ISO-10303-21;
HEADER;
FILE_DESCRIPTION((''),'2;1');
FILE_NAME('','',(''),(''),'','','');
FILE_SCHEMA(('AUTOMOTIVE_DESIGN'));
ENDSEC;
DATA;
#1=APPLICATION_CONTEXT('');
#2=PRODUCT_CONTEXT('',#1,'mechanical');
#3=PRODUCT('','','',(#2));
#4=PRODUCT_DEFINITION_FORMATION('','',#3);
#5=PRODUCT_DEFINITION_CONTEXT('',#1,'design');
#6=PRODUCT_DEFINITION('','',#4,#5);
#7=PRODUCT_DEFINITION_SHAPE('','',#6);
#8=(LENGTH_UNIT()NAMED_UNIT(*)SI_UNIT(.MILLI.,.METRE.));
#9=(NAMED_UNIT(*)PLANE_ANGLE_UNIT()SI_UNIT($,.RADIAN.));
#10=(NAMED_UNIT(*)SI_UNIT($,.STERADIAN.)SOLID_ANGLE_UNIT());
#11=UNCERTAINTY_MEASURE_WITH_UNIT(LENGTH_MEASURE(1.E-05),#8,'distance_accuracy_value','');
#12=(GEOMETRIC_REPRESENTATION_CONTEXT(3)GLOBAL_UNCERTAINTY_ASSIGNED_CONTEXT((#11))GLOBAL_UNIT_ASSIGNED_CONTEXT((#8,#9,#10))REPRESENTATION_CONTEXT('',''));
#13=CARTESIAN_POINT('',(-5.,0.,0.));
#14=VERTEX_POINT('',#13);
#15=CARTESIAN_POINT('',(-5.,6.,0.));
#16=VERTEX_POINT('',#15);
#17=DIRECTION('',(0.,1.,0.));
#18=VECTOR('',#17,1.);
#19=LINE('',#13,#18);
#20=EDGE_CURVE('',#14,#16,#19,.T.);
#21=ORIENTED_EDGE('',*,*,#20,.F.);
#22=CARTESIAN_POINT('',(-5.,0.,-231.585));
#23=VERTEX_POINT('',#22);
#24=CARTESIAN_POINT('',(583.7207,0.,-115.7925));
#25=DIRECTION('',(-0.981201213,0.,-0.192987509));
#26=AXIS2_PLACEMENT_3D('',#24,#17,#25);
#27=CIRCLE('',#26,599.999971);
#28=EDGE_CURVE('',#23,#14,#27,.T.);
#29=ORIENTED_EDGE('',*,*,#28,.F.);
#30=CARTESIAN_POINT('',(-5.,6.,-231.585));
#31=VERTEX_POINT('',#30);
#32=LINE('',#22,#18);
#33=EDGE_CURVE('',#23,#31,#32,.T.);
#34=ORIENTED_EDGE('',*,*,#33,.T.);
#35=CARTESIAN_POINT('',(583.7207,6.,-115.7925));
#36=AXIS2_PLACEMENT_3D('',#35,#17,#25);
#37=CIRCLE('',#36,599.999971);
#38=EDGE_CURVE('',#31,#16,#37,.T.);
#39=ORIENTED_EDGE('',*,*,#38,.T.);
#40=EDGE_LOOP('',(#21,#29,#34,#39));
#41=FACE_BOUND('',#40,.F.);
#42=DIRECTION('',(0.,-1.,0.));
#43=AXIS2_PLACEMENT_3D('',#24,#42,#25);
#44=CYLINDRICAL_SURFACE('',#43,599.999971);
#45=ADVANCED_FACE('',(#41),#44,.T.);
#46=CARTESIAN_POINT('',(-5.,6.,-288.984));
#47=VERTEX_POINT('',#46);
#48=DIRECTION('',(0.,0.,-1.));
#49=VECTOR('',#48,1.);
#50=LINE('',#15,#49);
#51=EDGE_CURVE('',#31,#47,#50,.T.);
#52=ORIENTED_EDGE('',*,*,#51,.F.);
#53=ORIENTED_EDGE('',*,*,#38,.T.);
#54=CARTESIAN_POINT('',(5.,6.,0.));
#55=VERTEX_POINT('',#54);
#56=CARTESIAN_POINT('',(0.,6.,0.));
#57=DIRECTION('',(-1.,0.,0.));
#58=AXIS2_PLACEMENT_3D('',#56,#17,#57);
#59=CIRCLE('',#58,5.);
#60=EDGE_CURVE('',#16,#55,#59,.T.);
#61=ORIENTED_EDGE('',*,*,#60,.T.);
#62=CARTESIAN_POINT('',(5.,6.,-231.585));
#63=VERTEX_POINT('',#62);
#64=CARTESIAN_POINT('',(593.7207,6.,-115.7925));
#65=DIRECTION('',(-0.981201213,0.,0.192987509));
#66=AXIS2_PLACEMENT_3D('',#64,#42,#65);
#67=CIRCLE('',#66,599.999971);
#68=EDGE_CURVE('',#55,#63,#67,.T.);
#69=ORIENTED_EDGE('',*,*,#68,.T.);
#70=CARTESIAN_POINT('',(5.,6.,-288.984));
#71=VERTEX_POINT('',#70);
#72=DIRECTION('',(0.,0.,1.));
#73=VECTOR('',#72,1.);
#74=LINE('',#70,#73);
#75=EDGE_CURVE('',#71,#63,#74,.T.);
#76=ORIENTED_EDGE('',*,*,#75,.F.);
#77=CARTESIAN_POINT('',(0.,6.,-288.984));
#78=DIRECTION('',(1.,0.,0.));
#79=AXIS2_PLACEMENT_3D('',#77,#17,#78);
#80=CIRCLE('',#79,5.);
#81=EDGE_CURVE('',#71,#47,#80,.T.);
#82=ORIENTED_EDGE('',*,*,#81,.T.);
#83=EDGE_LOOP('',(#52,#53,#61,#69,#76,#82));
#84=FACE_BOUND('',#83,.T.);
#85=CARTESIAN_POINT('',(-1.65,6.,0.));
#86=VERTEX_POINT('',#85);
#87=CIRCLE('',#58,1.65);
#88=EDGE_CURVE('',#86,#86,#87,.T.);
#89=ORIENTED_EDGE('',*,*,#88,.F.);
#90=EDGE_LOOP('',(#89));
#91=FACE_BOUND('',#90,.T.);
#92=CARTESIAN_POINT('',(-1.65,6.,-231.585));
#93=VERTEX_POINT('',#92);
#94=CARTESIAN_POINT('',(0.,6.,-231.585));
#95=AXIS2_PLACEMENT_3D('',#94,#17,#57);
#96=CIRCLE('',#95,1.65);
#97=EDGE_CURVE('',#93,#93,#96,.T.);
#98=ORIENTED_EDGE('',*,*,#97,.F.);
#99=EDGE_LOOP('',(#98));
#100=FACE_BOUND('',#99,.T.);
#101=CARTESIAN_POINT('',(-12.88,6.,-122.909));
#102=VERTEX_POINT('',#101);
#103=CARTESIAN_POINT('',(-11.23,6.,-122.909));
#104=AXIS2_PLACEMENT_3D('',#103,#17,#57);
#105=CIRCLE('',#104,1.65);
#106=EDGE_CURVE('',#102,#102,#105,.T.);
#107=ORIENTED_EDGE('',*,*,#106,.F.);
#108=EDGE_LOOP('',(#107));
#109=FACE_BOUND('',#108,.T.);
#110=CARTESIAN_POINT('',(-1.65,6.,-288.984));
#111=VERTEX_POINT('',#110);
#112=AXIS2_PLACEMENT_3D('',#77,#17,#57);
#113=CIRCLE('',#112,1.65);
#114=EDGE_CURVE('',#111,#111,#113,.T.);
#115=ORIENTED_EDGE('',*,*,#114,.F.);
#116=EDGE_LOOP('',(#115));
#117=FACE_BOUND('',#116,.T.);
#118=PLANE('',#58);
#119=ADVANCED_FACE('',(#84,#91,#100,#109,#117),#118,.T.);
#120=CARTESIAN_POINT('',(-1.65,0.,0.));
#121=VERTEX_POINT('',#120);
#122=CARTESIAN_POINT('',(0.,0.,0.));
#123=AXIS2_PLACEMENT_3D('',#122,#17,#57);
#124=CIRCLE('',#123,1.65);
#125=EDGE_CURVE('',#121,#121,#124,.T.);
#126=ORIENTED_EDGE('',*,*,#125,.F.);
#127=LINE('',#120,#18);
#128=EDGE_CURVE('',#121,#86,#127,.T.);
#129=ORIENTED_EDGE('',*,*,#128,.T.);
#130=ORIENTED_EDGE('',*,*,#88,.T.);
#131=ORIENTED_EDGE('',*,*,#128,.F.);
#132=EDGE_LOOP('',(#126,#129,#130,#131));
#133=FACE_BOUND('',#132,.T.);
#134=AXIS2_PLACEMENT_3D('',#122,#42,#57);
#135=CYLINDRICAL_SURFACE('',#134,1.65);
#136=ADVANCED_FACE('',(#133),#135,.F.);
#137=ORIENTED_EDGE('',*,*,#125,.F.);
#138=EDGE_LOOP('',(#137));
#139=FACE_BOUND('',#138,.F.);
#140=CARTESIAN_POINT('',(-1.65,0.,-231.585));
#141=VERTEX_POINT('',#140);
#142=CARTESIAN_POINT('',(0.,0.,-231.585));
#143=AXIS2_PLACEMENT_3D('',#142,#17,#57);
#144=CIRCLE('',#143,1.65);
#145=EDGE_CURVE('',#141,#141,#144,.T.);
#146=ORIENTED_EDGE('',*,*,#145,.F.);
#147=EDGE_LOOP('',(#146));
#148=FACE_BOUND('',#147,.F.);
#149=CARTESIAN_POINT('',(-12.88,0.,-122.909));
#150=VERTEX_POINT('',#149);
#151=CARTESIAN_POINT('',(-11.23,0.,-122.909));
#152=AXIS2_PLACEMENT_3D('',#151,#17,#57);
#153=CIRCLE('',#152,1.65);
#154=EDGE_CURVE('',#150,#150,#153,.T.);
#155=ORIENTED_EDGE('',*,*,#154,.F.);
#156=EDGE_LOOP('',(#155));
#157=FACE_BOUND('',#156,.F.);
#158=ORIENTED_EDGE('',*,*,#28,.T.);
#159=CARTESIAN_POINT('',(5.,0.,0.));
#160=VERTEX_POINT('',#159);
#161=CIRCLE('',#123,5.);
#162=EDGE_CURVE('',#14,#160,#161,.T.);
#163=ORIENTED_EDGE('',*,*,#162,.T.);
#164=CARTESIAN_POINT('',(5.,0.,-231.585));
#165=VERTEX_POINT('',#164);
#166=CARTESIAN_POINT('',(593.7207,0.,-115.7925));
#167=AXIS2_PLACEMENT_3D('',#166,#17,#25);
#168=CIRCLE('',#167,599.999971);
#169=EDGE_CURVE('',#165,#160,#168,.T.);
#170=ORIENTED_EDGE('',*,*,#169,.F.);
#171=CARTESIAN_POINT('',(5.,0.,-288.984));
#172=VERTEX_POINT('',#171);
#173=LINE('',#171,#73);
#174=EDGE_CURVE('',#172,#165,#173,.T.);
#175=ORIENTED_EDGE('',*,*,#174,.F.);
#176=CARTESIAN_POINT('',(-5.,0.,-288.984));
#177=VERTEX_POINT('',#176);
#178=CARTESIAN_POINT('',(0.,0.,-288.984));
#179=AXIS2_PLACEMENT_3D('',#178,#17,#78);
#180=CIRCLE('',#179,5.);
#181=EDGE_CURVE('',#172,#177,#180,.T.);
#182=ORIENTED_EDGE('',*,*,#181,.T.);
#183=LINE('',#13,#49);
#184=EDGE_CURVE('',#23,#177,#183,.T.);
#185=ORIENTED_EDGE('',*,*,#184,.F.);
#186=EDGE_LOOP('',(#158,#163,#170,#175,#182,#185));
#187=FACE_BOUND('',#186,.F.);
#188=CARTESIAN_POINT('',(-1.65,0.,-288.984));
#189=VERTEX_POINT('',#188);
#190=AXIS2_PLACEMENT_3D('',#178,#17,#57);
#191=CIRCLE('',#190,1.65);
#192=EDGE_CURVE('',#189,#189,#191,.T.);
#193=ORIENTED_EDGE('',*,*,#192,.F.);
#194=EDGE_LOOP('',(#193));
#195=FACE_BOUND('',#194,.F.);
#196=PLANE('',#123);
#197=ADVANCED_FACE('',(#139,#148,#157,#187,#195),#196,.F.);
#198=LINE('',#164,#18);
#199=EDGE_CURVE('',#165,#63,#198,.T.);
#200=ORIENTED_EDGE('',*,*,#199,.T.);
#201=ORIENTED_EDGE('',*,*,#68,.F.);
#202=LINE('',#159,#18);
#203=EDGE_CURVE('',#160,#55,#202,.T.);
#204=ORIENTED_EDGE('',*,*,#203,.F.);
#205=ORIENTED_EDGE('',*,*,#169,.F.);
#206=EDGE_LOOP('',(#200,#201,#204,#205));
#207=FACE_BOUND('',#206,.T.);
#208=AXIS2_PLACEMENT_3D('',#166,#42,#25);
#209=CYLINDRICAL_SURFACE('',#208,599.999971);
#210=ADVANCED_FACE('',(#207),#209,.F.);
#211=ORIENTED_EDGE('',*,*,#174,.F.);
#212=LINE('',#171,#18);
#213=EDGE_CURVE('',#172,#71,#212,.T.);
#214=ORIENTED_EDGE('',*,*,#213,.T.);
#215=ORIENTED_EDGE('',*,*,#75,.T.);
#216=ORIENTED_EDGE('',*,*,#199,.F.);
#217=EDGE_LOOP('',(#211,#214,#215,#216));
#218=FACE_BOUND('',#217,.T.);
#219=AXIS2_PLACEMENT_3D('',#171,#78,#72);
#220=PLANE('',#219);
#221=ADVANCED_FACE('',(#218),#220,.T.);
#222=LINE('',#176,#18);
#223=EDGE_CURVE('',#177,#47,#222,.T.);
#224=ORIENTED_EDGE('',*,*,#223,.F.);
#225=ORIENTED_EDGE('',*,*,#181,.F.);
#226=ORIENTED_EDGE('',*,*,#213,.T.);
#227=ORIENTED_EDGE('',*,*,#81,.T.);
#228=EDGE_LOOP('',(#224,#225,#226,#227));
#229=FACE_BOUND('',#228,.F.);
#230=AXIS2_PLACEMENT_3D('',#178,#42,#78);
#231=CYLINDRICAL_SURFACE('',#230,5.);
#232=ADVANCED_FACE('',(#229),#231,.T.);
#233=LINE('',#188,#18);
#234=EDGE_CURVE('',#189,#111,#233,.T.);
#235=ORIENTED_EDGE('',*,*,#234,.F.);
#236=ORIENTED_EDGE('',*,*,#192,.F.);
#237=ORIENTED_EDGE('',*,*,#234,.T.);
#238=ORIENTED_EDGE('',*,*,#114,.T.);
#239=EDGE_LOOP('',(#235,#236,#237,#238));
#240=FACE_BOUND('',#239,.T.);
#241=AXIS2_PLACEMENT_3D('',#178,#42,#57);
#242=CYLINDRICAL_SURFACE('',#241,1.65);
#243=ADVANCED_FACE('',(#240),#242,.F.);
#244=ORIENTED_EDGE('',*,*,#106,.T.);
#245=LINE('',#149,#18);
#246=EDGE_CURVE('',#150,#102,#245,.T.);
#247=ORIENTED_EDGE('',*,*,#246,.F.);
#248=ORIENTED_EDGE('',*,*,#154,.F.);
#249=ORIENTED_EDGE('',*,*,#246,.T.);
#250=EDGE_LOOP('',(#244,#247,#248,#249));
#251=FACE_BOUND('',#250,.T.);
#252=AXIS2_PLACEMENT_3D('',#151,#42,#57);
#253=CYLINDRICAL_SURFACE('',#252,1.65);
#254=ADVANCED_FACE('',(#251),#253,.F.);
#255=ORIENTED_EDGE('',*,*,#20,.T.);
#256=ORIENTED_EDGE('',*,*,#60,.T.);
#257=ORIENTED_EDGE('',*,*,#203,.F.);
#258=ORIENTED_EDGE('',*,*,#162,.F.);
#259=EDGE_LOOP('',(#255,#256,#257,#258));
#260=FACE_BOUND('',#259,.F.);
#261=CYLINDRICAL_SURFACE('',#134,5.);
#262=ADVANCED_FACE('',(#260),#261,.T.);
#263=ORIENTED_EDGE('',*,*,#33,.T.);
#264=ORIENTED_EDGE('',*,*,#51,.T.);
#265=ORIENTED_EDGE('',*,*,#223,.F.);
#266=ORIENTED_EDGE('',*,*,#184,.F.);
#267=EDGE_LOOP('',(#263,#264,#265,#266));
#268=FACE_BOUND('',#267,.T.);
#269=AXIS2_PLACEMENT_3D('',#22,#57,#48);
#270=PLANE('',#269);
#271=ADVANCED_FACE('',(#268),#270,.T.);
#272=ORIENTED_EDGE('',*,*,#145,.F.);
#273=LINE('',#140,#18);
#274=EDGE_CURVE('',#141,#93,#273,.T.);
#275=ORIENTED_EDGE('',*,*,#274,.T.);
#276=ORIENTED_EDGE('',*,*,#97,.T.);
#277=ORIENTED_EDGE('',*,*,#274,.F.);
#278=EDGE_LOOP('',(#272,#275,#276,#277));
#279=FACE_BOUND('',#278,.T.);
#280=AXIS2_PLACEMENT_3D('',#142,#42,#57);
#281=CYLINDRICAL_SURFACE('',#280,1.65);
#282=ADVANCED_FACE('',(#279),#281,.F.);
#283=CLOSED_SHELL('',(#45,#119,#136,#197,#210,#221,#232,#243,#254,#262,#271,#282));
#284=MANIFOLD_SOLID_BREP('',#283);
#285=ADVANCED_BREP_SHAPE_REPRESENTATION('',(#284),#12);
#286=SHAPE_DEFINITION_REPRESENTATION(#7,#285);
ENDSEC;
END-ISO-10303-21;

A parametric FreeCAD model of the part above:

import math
import FreeCAD as App
import Part
import Sketcher

V = App.Vector

doc = App.newDocument("Part")
params = doc.addObject("Spreadsheet::Sheet", "Params")
for row, (alias, value) in enumerate([
    ("sketch1_radius", "600 mm"),
    ("sketch1_radius2", "5 mm"),
    ("sketch1_diameter", "3.3 mm"),
    ("pad1_length", "6 mm"),
], start=1):
    params.set(f"A{row}", alias)
    params.set(f"B{row}", "=" + value)
    params.setAlias(f"B{row}", alias)

body = doc.addObject("PartDesign::Body", "Body")

# Sketch on XZ plane
sketch1 = body.newObject("Sketcher::SketchObject", "Sketch")
sketch1.AttachmentSupport = (doc.getObject("XZ_Plane"), [""])
sketch1.MapMode = "FlatFace"
sketch1.addGeometry([
    Part.LineSegment(V(-5, -289, 0), V(-5, -231.6, 0)),  # 0
    Part.ArcOfCircle(Part.Circle(V(583.7, -115.8, 0), V(0, 0, 1), 600), math.radians(169), math.radians(191)),  # 1
    Part.ArcOfCircle(Part.Circle(V(0, 0, 0), V(0, 0, 1), 5), math.radians(0), math.radians(180)),  # 2
    Part.ArcOfCircle(Part.Circle(V(593.7, -115.8, 0), V(0, 0, 1), 600), math.radians(169), math.radians(191)),  # 3
    Part.LineSegment(V(5, -231.6, 0), V(5, -289, 0)),  # 4
    Part.ArcOfCircle(Part.Circle(V(0, -289, 0), V(0, 0, 1), 5), math.radians(180), math.radians(360)),  # 5
    Part.Circle(V(0, -289, 0), V(0, 0, 1), 1.6),  # 6
    Part.Circle(V(0, -231.6, 0), V(0, 0, 1), 1.6),  # 7
    Part.Circle(V(-11.2, -122.9, 0), V(0, 0, 1), 1.6),  # 8
    Part.Circle(V(0, 0, 0), V(0, 0, 1), 1.6),  # 9
], False)
sketch1.addConstraint([
    Sketcher.Constraint("Coincident", 0, 2, 1, 2),
    Sketcher.Constraint("Coincident", 1, 1, 2, 2),
    Sketcher.Constraint("Coincident", 2, 1, 3, 1),
    Sketcher.Constraint("Coincident", 3, 2, 4, 1),
    Sketcher.Constraint("Tangent", 4, 2, 5, 2),
    Sketcher.Constraint("Tangent", 5, 1, 0, 1),
    Sketcher.Constraint("Vertical", 0),
    Sketcher.Constraint("Vertical", 4),
    Sketcher.Constraint("Coincident", 2, 3, -1, 1),
    Sketcher.Constraint("Coincident", 9, 3, -1, 1),
    Sketcher.Constraint("Coincident", 6, 3, 5, 3),
    Sketcher.Constraint("Equal", 1, 3),
    Sketcher.Constraint("Equal", 2, 5),
    Sketcher.Constraint("Equal", 6, 7),
    Sketcher.Constraint("Equal", 7, 8),
    Sketcher.Constraint("Equal", 8, 9),
    Sketcher.Constraint("Symmetric", 0, 2, 3, 2, -2),
    Sketcher.Constraint("PointOnObject", 7, 3, -2),
    Sketcher.Constraint("PointOnObject", 1, 1, -1),
    Sketcher.Constraint("PointOnObject", 2, 1, -1),
    Sketcher.Constraint("Horizontal", 7, 3, 0, 2),
    Sketcher.Constraint("Radius", 1, 600.0),
    Sketcher.Constraint("Radius", 2, 5.0),
    Sketcher.Constraint("Diameter", 6, 3.3),
    Sketcher.Constraint("DistanceY", 5, 3, -1, 1, 288.984),
    Sketcher.Constraint("DistanceY", 7, 3, -1, 1, 231.585),
    Sketcher.Constraint("DistanceY", 8, 3, -1, 1, 122.909),
    Sketcher.Constraint("DistanceX", 8, 3, -1, 1, 11.23),
])
sketch1.setExpression("Constraints[21]", "Params.sketch1_radius")
sketch1.setExpression("Constraints[22]", "Params.sketch1_radius2")
sketch1.setExpression("Constraints[23]", "Params.sketch1_diameter")
pad1 = body.newObject("PartDesign::Pad", "Pad")
pad1.Profile = sketch1
pad1.setExpression("Length", "Params.pad1_length")
pad1.Reversed = True

doc.recompute()
